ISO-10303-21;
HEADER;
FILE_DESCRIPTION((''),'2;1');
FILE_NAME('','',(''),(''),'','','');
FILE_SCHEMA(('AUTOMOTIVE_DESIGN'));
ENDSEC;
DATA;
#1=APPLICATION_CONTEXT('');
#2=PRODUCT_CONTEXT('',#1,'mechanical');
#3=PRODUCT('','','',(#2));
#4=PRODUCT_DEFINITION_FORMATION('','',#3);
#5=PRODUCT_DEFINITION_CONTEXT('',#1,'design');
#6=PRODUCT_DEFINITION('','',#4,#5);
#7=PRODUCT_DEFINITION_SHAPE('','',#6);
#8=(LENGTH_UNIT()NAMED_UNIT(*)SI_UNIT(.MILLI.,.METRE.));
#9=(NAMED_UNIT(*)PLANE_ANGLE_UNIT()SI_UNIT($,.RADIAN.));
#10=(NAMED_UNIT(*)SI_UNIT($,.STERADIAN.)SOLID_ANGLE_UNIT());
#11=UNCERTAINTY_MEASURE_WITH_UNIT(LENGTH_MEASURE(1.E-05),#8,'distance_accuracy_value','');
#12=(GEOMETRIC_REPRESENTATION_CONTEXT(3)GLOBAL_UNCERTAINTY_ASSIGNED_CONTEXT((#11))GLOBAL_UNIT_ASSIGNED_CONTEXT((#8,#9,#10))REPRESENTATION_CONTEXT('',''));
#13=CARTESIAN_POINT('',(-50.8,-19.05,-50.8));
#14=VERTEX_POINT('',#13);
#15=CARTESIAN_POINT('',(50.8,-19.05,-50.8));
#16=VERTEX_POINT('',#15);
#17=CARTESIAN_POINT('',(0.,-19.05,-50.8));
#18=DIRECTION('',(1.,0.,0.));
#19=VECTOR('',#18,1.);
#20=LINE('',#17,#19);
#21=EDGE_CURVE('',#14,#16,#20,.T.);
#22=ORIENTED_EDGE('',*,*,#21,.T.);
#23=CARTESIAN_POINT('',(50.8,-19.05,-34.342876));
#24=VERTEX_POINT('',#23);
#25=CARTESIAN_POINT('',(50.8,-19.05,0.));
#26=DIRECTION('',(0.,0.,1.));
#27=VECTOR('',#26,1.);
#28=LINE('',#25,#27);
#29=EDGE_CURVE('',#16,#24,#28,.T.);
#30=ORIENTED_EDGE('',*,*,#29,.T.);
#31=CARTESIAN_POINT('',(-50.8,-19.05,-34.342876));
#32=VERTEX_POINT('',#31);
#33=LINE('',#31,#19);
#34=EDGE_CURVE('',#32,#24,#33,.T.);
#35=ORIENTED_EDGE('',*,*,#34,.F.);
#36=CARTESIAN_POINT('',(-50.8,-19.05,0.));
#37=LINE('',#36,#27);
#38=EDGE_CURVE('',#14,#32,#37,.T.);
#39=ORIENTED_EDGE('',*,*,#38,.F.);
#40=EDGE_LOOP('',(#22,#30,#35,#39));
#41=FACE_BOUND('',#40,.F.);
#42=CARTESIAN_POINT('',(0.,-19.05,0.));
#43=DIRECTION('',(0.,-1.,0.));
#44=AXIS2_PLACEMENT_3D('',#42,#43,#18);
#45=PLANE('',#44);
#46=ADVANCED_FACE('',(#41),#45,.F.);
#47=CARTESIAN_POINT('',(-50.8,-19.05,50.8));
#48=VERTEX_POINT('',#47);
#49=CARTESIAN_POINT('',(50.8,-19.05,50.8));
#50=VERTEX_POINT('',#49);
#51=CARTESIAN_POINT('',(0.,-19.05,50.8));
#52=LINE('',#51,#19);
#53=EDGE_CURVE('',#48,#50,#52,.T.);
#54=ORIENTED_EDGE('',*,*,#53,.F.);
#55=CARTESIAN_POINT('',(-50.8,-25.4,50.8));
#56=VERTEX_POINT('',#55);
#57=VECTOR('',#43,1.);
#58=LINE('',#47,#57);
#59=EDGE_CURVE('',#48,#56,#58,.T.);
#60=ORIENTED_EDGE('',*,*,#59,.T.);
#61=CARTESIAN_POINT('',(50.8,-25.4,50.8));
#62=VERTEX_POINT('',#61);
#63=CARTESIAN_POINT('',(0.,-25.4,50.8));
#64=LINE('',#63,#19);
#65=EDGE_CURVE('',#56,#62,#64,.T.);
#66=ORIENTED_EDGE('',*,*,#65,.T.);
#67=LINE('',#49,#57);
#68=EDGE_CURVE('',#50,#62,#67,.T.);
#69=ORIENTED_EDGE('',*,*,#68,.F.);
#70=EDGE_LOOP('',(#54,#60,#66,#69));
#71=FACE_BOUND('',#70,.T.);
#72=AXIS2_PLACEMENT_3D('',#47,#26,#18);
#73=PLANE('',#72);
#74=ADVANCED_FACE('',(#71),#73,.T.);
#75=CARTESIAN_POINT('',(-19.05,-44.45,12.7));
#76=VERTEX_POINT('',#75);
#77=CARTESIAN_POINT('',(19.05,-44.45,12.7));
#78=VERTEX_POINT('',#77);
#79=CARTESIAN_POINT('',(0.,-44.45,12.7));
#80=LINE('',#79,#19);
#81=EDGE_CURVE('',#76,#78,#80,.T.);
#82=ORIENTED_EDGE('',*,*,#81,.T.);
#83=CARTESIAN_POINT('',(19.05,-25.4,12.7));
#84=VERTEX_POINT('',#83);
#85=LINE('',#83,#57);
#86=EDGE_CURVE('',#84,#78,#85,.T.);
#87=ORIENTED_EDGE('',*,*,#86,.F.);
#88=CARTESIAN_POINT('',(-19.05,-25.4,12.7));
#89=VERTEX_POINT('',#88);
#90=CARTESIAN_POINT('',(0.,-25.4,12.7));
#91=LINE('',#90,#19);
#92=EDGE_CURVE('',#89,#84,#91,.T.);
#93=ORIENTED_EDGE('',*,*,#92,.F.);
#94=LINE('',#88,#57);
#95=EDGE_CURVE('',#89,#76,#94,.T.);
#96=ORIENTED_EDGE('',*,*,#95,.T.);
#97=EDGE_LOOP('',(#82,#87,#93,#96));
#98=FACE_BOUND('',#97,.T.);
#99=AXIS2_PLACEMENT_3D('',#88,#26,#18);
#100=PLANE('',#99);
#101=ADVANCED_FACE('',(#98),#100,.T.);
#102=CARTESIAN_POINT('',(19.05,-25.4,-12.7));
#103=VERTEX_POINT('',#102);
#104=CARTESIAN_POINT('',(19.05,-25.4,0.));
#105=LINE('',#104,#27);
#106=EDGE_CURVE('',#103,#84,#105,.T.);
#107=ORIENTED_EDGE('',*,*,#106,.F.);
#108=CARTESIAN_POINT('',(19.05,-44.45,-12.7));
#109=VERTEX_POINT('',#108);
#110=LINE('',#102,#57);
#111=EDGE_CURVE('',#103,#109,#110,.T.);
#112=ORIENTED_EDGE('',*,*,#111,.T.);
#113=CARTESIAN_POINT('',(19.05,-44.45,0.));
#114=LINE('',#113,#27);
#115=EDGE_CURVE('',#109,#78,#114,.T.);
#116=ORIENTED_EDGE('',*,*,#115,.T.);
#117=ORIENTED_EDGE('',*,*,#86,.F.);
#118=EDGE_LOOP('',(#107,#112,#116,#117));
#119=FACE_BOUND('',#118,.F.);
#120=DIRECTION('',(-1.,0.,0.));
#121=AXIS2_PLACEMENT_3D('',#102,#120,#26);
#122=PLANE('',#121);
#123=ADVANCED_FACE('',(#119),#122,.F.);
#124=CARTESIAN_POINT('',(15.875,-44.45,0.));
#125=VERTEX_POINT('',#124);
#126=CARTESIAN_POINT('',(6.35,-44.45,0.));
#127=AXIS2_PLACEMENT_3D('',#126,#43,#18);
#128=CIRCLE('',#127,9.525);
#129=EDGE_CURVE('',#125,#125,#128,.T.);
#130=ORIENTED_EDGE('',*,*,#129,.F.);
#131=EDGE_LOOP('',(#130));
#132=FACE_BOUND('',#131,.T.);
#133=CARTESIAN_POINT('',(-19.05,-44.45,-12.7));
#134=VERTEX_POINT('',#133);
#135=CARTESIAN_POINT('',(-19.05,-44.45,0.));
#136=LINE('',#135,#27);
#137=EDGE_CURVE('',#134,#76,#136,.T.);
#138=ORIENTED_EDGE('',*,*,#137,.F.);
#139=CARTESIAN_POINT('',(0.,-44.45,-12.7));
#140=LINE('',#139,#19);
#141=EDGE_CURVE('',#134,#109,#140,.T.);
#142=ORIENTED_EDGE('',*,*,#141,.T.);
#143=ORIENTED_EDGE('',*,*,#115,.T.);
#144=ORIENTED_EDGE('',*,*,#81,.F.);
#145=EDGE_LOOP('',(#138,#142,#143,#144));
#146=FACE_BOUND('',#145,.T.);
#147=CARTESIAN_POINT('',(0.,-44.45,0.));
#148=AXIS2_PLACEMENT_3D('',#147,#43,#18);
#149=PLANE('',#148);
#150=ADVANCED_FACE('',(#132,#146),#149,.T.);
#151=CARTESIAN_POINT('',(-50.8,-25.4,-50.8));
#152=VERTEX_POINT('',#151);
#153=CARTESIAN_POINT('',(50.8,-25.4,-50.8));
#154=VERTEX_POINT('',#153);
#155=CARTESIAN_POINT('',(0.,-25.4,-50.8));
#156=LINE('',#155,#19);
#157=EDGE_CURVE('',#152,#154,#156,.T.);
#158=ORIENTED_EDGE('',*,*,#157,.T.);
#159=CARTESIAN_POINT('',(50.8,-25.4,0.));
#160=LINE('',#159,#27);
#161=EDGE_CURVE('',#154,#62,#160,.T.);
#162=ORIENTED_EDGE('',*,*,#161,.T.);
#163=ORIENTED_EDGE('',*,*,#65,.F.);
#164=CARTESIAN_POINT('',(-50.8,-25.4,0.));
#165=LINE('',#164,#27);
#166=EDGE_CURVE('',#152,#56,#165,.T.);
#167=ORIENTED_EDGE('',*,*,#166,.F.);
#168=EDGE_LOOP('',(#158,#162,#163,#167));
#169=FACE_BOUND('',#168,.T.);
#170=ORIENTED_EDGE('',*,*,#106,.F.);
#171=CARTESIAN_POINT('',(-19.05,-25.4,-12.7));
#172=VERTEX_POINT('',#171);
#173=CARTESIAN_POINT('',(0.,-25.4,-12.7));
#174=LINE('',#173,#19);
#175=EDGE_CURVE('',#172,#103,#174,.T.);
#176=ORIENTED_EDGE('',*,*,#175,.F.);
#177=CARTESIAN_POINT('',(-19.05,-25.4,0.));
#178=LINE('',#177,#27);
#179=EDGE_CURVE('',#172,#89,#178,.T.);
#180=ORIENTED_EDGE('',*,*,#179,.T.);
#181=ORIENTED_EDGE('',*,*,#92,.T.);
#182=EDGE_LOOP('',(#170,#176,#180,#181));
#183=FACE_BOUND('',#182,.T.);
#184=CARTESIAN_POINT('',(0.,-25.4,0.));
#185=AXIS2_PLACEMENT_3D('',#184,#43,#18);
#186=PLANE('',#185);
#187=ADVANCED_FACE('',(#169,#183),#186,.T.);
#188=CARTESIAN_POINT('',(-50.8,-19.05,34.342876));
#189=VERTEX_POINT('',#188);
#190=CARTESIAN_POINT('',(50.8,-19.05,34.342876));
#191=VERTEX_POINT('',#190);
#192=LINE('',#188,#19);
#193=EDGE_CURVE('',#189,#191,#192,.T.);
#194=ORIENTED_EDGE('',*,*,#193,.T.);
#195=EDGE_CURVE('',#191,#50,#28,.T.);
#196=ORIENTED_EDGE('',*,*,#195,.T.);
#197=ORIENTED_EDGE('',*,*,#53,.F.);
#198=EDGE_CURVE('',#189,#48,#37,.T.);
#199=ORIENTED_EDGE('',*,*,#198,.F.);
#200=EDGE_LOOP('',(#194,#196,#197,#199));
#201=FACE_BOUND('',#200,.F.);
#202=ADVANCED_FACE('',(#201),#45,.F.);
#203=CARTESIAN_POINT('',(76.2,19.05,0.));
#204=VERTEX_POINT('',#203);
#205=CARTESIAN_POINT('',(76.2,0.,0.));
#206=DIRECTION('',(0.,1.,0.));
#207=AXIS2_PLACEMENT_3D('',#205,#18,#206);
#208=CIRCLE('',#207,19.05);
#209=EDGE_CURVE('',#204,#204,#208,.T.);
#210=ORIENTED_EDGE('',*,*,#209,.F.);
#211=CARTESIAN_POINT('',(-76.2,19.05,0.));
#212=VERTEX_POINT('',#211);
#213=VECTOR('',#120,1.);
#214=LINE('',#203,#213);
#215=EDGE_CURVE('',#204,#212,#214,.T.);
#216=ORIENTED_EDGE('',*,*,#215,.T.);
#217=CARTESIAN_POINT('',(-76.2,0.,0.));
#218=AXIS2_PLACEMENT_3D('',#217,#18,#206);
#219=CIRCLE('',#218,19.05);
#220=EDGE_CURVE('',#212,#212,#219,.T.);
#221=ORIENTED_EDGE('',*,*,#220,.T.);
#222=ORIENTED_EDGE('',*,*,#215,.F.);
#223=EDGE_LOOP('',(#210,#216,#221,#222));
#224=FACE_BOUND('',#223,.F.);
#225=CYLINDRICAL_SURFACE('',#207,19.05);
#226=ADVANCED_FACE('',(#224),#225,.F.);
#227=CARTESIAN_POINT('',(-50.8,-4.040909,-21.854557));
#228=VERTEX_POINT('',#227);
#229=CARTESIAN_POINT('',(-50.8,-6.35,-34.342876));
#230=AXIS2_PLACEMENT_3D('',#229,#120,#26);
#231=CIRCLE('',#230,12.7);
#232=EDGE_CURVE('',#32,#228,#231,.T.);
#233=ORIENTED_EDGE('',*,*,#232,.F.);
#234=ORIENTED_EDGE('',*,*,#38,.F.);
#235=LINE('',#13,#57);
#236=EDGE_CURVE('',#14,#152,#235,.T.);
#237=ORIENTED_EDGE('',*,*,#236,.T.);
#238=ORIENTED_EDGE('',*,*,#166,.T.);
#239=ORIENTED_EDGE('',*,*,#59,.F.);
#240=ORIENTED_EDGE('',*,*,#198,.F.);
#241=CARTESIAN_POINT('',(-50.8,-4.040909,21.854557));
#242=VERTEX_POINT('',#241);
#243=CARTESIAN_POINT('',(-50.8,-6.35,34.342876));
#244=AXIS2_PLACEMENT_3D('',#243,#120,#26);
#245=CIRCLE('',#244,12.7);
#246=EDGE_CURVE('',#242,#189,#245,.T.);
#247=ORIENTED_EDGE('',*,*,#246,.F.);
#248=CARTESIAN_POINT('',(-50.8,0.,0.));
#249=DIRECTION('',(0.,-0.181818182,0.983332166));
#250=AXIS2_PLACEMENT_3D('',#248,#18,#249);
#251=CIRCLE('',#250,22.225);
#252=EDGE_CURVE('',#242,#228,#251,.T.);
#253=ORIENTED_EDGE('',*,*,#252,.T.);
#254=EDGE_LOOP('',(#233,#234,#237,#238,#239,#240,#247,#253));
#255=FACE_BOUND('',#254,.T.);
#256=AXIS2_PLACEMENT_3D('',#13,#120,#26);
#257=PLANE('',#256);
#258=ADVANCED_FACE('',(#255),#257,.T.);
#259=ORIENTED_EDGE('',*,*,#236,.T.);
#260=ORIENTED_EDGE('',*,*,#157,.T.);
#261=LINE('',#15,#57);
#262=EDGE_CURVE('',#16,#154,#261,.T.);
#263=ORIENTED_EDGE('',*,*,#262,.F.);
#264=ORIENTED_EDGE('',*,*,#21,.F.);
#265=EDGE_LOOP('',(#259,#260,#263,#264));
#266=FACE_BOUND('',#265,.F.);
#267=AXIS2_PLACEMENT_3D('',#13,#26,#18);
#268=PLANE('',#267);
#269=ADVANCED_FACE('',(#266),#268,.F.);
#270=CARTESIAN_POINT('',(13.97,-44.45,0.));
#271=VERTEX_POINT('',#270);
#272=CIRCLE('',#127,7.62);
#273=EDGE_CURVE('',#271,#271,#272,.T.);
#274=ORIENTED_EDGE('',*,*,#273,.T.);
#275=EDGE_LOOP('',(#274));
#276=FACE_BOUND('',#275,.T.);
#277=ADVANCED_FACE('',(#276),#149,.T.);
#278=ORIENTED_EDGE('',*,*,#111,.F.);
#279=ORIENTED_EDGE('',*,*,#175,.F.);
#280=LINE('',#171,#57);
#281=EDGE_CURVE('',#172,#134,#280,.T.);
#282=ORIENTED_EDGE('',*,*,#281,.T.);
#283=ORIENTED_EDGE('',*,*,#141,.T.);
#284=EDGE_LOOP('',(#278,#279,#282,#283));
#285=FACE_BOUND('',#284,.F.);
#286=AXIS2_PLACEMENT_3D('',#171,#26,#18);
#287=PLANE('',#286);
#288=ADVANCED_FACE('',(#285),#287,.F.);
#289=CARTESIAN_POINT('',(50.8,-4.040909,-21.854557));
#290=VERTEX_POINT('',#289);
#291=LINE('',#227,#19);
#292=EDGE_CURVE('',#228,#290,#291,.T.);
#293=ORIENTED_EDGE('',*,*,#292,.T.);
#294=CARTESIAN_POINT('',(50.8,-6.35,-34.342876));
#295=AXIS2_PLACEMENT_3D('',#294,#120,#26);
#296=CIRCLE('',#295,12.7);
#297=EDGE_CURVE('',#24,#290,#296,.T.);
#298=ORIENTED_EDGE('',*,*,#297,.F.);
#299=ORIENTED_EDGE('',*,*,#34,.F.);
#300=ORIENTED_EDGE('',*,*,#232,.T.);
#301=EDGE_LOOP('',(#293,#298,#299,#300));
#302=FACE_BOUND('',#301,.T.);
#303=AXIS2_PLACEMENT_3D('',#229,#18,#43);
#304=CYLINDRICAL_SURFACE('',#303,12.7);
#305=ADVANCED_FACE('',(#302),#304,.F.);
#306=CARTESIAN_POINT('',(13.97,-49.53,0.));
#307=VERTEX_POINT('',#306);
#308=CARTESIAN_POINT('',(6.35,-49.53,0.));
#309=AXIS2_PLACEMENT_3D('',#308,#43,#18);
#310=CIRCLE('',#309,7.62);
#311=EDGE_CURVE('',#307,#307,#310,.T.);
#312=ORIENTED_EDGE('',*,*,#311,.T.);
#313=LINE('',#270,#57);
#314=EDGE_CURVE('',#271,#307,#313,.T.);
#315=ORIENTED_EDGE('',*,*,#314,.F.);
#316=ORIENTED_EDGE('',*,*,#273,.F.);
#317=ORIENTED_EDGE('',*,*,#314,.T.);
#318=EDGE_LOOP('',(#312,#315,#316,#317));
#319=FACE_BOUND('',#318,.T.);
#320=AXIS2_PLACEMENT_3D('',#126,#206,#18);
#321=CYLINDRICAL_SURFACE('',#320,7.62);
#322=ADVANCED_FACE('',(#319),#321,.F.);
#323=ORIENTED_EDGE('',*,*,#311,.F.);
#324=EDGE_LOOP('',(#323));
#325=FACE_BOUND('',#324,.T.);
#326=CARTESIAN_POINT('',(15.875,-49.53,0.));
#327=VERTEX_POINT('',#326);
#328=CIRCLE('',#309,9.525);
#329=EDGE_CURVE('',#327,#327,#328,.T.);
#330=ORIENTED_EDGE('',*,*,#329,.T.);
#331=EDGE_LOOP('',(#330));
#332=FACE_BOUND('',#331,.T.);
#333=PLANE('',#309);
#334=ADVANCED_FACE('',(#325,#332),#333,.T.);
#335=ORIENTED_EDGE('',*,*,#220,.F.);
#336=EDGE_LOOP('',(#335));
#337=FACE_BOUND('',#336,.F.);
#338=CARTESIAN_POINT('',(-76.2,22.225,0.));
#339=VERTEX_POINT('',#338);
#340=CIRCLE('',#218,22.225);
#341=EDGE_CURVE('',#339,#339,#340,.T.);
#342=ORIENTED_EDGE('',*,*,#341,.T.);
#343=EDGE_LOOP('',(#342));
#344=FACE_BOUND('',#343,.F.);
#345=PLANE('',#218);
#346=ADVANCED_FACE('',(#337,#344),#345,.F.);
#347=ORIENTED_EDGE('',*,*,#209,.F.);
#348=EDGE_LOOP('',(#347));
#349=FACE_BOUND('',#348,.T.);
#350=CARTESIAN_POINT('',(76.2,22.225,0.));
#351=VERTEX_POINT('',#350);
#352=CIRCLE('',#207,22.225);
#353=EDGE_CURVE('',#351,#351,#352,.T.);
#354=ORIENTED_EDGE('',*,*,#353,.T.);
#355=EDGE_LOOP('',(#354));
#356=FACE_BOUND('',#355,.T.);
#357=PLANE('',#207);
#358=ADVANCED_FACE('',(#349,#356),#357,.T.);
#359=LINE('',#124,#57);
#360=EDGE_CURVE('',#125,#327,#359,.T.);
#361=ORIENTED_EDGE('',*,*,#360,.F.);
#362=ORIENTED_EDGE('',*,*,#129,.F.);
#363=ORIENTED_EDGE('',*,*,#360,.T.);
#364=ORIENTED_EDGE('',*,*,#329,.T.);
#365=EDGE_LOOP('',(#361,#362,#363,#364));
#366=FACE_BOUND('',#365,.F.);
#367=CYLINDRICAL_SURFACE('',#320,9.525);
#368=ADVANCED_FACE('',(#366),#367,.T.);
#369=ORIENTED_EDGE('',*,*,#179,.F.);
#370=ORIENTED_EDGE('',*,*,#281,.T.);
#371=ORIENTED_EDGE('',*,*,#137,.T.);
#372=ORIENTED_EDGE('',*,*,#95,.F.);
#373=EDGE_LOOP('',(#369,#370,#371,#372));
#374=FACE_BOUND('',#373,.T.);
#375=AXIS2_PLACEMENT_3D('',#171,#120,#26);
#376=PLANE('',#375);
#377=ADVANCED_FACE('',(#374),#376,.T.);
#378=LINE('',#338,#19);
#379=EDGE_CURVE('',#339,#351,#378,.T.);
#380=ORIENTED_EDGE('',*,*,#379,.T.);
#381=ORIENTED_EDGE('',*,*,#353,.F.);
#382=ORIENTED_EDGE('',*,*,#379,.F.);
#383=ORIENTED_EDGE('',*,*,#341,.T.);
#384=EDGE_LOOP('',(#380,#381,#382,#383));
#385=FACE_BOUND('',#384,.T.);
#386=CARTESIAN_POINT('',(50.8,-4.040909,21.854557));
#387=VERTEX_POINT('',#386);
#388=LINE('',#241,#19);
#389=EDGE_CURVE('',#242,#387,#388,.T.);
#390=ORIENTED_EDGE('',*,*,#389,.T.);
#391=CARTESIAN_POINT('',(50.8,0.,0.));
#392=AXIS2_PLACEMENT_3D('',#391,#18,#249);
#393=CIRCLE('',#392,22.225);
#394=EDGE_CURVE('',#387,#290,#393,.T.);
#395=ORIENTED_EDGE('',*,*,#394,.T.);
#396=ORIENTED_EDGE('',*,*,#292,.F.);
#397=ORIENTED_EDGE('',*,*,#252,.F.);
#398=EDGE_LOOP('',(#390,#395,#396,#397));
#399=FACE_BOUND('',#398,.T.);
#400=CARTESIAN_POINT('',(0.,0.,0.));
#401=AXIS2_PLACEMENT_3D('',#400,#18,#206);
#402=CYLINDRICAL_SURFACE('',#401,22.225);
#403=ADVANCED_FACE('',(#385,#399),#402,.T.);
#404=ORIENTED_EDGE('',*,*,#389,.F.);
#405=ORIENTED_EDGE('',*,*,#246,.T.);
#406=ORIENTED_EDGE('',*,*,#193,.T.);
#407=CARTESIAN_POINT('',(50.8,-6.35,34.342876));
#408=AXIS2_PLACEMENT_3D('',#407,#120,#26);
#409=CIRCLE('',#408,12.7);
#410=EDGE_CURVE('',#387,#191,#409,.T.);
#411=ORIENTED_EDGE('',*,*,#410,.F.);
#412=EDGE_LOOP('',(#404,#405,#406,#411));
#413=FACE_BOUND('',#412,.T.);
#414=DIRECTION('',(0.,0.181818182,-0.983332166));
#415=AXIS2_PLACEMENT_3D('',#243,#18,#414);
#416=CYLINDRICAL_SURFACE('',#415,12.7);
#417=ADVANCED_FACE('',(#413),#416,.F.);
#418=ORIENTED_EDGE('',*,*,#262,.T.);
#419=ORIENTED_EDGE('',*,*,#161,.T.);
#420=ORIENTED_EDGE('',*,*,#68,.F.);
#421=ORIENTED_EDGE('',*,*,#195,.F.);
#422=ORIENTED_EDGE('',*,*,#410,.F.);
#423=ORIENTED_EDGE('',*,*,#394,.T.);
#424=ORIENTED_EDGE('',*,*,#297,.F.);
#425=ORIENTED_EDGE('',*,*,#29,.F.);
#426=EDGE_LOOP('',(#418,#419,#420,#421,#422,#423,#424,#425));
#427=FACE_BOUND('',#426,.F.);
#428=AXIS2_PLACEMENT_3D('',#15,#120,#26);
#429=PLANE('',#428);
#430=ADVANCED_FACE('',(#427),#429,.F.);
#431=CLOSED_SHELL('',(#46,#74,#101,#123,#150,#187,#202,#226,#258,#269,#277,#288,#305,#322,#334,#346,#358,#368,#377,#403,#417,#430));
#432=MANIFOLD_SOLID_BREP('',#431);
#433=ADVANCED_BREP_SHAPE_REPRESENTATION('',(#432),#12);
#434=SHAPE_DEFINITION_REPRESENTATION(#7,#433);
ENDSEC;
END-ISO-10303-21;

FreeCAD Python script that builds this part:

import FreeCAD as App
import Part
import Sketcher
from FreeCAD import Vector
Q = App.Units.Quantity


def edges_at(feature, points):
    """Names of the edges that pass closest to the given points."""
    edges = feature.Shape.Edges
    near = lambda p: min(range(len(edges)), key=lambda i: edges[i].distToShape(Part.Vertex(*p))[0])
    return sorted({f"Edge{near(p) + 1}" for p in points})


def add_polygon(sketch, points):
    """Adds a closed chain of lines whose ends are joined by coincident constraints."""
    first, n = sketch.GeometryCount, len(points)
    for a, b in zip(points, points[1:] + points[:1]):
        sketch.addGeometry(Part.LineSegment(App.Vector(*a, 0), App.Vector(*b, 0)), False)
    for i in range(n):
        sketch.addConstraint(Sketcher.Constraint("Coincident", first + i, 2, first + (i + 1) % n, 1))

doc = App.newDocument("Part")
body = doc.addObject("PartDesign::Body", "Body")

# Sketch on YZ plane
sketch1 = body.newObject("Sketcher::SketchObject", "Sketch")
sketch1.AttachmentSupport = (doc.getObject("YZ_Plane"), [""])
sketch1.MapMode = "FlatFace"
sketch1.addGeometry(Part.Circle(Vector(0, 0, 0), Vector(0, 0, 1), 22.225), False)
sketch1.addConstraint(Sketcher.Constraint("Coincident", 0, 3, -1, 1))
sketch1.addConstraint(Sketcher.Constraint("Diameter", 0, Q("1.75 in")))
pad1 = body.newObject("PartDesign::Pad", "Pad")
pad1.Profile = sketch1
pad1.Type = "TwoLengths"
pad1.Length = Q("3 in")
pad1.Length2 = Q("3 in")

# Sketch on XZ plane
sketch2 = body.newObject("Sketcher::SketchObject", "Sketch001")
sketch2.AttachmentSupport = (doc.getObject("XZ_Plane"), [""])
sketch2.MapMode = "FlatFace"
sketch2.AttachmentOffset = App.Placement(Vector(0, 0, 0.75 * 25.4), App.Rotation())
add_polygon(sketch2, [(-50.8, 50.8), (-50.8, -50.8), (50.8, -50.8), (50.8, 50.8)])  # lines 0-3
sketch2.addConstraint(Sketcher.Constraint("Vertical", 0))
sketch2.addConstraint(Sketcher.Constraint("Horizontal", 1))
sketch2.addConstraint(Sketcher.Constraint("Vertical", 2))
sketch2.addConstraint(Sketcher.Constraint("Horizontal", 3))
sketch2.addConstraint(Sketcher.Constraint("Symmetric", 0, 2, 2, 2, -1, 1))
sketch2.addConstraint(Sketcher.Constraint("Equal", 3, 0))
sketch2.addConstraint(Sketcher.Constraint("DistanceX", 1, 1, 1, 2, Q("4 in")))
pad2 = body.newObject("PartDesign::Pad", "Pad001")
pad2.Profile = sketch2
pad2.Length = Q("0.25 in")
doc.recompute()

fillet = body.newObject("PartDesign::Fillet", "Fillet")
fillet.Base = (pad2, edges_at(pad2, [(0, -19.05, 11.448), (0, -19.05, -11.448)]))
fillet.Radius = Q("0.5 in")

# Sketch on XZ plane
sketch3 = body.newObject("Sketcher::SketchObject", "Sketch002")
sketch3.AttachmentSupport = (doc.getObject("XZ_Plane"), [""])
sketch3.MapMode = "FlatFace"
sketch3.AttachmentOffset = App.Placement(Vector(0, 0, 1 * 25.4), App.Rotation())
add_polygon(sketch3, [(-19.05, 12.7), (-19.05, -12.7), (19.05, -12.7), (19.05, 12.7)])  # lines 0-3
sketch3.addConstraint(Sketcher.Constraint("Vertical", 0))
sketch3.addConstraint(Sketcher.Constraint("Horizontal", 1))
sketch3.addConstraint(Sketcher.Constraint("Vertical", 2))
sketch3.addConstraint(Sketcher.Constraint("Horizontal", 3))
sketch3.addConstraint(Sketcher.Constraint("Symmetric", 0, 2, 2, 2, -1, 1))
sketch3.addConstraint(Sketcher.Constraint("DistanceY", 0, 2, 0, 1, Q("1 in")))
sketch3.addConstraint(Sketcher.Constraint("DistanceX", 1, 1, 1, 2, Q("1.5 in")))
pad3 = body.newObject("PartDesign::Pad", "Pad002")
pad3.Profile = sketch3
pad3.Length = Q("0.75 in")

# Sketch on XZ plane
sketch4 = body.newObject("Sketcher::SketchObject", "Sketch003")
sketch4.AttachmentSupport = (doc.getObject("XZ_Plane"), [""])
sketch4.MapMode = "FlatFace"
sketch4.AttachmentOffset = App.Placement(Vector(0, 0, 1.75 * 25.4), App.Rotation())
sketch4.addGeometry(Part.Circle(Vector(6.35, 0, 0), Vector(0, 0, 1), 9.525), False)
sketch4.addGeometry(Part.Circle(Vector(6.35, 0, 0), Vector(0, 0, 1), 7.62), False)
sketch4.addConstraint(Sketcher.Constraint("Coincident", 1, 3, 0, 3))
sketch4.addConstraint(Sketcher.Constraint("PointOnObject", 0, 3, -1))
sketch4.addConstraint(Sketcher.Constraint("Diameter", 1, Q("0.6 in")))
sketch4.addConstraint(Sketcher.Constraint("Diameter", 0, Q("0.75 in")))
sketch4.addConstraint(Sketcher.Constraint("DistanceX", -1, 1, 0, 3, Q("0.25 in")))
pad4 = body.newObject("PartDesign::Pad", "Pad003")
pad4.Profile = sketch4
pad4.Length = Q("0.2 in")

# Sketch on YZ plane
sketch5 = body.newObject("Sketcher::SketchObject", "Sketch004")
sketch5.AttachmentSupport = (doc.getObject("YZ_Plane"), [""])
sketch5.MapMode = "FlatFace"
sketch5.AttachmentOffset = App.Placement(Vector(0, 0, 3 * 25.4), App.Rotation())
sketch5.addGeometry(Part.Circle(Vector(0, 0, 0), Vector(0, 0, 1), 19.05), False)
sketch5.addConstraint(Sketcher.Constraint("Coincident", 0, 3, -1, 1))
sketch5.addConstraint(Sketcher.Constraint("Diameter", 0, Q("1.5 in")))
pocket1 = body.newObject("PartDesign::Pocket", "Pocket")
pocket1.Profile = sketch5
pocket1.Length = Q("6 in")

doc.recompute()
